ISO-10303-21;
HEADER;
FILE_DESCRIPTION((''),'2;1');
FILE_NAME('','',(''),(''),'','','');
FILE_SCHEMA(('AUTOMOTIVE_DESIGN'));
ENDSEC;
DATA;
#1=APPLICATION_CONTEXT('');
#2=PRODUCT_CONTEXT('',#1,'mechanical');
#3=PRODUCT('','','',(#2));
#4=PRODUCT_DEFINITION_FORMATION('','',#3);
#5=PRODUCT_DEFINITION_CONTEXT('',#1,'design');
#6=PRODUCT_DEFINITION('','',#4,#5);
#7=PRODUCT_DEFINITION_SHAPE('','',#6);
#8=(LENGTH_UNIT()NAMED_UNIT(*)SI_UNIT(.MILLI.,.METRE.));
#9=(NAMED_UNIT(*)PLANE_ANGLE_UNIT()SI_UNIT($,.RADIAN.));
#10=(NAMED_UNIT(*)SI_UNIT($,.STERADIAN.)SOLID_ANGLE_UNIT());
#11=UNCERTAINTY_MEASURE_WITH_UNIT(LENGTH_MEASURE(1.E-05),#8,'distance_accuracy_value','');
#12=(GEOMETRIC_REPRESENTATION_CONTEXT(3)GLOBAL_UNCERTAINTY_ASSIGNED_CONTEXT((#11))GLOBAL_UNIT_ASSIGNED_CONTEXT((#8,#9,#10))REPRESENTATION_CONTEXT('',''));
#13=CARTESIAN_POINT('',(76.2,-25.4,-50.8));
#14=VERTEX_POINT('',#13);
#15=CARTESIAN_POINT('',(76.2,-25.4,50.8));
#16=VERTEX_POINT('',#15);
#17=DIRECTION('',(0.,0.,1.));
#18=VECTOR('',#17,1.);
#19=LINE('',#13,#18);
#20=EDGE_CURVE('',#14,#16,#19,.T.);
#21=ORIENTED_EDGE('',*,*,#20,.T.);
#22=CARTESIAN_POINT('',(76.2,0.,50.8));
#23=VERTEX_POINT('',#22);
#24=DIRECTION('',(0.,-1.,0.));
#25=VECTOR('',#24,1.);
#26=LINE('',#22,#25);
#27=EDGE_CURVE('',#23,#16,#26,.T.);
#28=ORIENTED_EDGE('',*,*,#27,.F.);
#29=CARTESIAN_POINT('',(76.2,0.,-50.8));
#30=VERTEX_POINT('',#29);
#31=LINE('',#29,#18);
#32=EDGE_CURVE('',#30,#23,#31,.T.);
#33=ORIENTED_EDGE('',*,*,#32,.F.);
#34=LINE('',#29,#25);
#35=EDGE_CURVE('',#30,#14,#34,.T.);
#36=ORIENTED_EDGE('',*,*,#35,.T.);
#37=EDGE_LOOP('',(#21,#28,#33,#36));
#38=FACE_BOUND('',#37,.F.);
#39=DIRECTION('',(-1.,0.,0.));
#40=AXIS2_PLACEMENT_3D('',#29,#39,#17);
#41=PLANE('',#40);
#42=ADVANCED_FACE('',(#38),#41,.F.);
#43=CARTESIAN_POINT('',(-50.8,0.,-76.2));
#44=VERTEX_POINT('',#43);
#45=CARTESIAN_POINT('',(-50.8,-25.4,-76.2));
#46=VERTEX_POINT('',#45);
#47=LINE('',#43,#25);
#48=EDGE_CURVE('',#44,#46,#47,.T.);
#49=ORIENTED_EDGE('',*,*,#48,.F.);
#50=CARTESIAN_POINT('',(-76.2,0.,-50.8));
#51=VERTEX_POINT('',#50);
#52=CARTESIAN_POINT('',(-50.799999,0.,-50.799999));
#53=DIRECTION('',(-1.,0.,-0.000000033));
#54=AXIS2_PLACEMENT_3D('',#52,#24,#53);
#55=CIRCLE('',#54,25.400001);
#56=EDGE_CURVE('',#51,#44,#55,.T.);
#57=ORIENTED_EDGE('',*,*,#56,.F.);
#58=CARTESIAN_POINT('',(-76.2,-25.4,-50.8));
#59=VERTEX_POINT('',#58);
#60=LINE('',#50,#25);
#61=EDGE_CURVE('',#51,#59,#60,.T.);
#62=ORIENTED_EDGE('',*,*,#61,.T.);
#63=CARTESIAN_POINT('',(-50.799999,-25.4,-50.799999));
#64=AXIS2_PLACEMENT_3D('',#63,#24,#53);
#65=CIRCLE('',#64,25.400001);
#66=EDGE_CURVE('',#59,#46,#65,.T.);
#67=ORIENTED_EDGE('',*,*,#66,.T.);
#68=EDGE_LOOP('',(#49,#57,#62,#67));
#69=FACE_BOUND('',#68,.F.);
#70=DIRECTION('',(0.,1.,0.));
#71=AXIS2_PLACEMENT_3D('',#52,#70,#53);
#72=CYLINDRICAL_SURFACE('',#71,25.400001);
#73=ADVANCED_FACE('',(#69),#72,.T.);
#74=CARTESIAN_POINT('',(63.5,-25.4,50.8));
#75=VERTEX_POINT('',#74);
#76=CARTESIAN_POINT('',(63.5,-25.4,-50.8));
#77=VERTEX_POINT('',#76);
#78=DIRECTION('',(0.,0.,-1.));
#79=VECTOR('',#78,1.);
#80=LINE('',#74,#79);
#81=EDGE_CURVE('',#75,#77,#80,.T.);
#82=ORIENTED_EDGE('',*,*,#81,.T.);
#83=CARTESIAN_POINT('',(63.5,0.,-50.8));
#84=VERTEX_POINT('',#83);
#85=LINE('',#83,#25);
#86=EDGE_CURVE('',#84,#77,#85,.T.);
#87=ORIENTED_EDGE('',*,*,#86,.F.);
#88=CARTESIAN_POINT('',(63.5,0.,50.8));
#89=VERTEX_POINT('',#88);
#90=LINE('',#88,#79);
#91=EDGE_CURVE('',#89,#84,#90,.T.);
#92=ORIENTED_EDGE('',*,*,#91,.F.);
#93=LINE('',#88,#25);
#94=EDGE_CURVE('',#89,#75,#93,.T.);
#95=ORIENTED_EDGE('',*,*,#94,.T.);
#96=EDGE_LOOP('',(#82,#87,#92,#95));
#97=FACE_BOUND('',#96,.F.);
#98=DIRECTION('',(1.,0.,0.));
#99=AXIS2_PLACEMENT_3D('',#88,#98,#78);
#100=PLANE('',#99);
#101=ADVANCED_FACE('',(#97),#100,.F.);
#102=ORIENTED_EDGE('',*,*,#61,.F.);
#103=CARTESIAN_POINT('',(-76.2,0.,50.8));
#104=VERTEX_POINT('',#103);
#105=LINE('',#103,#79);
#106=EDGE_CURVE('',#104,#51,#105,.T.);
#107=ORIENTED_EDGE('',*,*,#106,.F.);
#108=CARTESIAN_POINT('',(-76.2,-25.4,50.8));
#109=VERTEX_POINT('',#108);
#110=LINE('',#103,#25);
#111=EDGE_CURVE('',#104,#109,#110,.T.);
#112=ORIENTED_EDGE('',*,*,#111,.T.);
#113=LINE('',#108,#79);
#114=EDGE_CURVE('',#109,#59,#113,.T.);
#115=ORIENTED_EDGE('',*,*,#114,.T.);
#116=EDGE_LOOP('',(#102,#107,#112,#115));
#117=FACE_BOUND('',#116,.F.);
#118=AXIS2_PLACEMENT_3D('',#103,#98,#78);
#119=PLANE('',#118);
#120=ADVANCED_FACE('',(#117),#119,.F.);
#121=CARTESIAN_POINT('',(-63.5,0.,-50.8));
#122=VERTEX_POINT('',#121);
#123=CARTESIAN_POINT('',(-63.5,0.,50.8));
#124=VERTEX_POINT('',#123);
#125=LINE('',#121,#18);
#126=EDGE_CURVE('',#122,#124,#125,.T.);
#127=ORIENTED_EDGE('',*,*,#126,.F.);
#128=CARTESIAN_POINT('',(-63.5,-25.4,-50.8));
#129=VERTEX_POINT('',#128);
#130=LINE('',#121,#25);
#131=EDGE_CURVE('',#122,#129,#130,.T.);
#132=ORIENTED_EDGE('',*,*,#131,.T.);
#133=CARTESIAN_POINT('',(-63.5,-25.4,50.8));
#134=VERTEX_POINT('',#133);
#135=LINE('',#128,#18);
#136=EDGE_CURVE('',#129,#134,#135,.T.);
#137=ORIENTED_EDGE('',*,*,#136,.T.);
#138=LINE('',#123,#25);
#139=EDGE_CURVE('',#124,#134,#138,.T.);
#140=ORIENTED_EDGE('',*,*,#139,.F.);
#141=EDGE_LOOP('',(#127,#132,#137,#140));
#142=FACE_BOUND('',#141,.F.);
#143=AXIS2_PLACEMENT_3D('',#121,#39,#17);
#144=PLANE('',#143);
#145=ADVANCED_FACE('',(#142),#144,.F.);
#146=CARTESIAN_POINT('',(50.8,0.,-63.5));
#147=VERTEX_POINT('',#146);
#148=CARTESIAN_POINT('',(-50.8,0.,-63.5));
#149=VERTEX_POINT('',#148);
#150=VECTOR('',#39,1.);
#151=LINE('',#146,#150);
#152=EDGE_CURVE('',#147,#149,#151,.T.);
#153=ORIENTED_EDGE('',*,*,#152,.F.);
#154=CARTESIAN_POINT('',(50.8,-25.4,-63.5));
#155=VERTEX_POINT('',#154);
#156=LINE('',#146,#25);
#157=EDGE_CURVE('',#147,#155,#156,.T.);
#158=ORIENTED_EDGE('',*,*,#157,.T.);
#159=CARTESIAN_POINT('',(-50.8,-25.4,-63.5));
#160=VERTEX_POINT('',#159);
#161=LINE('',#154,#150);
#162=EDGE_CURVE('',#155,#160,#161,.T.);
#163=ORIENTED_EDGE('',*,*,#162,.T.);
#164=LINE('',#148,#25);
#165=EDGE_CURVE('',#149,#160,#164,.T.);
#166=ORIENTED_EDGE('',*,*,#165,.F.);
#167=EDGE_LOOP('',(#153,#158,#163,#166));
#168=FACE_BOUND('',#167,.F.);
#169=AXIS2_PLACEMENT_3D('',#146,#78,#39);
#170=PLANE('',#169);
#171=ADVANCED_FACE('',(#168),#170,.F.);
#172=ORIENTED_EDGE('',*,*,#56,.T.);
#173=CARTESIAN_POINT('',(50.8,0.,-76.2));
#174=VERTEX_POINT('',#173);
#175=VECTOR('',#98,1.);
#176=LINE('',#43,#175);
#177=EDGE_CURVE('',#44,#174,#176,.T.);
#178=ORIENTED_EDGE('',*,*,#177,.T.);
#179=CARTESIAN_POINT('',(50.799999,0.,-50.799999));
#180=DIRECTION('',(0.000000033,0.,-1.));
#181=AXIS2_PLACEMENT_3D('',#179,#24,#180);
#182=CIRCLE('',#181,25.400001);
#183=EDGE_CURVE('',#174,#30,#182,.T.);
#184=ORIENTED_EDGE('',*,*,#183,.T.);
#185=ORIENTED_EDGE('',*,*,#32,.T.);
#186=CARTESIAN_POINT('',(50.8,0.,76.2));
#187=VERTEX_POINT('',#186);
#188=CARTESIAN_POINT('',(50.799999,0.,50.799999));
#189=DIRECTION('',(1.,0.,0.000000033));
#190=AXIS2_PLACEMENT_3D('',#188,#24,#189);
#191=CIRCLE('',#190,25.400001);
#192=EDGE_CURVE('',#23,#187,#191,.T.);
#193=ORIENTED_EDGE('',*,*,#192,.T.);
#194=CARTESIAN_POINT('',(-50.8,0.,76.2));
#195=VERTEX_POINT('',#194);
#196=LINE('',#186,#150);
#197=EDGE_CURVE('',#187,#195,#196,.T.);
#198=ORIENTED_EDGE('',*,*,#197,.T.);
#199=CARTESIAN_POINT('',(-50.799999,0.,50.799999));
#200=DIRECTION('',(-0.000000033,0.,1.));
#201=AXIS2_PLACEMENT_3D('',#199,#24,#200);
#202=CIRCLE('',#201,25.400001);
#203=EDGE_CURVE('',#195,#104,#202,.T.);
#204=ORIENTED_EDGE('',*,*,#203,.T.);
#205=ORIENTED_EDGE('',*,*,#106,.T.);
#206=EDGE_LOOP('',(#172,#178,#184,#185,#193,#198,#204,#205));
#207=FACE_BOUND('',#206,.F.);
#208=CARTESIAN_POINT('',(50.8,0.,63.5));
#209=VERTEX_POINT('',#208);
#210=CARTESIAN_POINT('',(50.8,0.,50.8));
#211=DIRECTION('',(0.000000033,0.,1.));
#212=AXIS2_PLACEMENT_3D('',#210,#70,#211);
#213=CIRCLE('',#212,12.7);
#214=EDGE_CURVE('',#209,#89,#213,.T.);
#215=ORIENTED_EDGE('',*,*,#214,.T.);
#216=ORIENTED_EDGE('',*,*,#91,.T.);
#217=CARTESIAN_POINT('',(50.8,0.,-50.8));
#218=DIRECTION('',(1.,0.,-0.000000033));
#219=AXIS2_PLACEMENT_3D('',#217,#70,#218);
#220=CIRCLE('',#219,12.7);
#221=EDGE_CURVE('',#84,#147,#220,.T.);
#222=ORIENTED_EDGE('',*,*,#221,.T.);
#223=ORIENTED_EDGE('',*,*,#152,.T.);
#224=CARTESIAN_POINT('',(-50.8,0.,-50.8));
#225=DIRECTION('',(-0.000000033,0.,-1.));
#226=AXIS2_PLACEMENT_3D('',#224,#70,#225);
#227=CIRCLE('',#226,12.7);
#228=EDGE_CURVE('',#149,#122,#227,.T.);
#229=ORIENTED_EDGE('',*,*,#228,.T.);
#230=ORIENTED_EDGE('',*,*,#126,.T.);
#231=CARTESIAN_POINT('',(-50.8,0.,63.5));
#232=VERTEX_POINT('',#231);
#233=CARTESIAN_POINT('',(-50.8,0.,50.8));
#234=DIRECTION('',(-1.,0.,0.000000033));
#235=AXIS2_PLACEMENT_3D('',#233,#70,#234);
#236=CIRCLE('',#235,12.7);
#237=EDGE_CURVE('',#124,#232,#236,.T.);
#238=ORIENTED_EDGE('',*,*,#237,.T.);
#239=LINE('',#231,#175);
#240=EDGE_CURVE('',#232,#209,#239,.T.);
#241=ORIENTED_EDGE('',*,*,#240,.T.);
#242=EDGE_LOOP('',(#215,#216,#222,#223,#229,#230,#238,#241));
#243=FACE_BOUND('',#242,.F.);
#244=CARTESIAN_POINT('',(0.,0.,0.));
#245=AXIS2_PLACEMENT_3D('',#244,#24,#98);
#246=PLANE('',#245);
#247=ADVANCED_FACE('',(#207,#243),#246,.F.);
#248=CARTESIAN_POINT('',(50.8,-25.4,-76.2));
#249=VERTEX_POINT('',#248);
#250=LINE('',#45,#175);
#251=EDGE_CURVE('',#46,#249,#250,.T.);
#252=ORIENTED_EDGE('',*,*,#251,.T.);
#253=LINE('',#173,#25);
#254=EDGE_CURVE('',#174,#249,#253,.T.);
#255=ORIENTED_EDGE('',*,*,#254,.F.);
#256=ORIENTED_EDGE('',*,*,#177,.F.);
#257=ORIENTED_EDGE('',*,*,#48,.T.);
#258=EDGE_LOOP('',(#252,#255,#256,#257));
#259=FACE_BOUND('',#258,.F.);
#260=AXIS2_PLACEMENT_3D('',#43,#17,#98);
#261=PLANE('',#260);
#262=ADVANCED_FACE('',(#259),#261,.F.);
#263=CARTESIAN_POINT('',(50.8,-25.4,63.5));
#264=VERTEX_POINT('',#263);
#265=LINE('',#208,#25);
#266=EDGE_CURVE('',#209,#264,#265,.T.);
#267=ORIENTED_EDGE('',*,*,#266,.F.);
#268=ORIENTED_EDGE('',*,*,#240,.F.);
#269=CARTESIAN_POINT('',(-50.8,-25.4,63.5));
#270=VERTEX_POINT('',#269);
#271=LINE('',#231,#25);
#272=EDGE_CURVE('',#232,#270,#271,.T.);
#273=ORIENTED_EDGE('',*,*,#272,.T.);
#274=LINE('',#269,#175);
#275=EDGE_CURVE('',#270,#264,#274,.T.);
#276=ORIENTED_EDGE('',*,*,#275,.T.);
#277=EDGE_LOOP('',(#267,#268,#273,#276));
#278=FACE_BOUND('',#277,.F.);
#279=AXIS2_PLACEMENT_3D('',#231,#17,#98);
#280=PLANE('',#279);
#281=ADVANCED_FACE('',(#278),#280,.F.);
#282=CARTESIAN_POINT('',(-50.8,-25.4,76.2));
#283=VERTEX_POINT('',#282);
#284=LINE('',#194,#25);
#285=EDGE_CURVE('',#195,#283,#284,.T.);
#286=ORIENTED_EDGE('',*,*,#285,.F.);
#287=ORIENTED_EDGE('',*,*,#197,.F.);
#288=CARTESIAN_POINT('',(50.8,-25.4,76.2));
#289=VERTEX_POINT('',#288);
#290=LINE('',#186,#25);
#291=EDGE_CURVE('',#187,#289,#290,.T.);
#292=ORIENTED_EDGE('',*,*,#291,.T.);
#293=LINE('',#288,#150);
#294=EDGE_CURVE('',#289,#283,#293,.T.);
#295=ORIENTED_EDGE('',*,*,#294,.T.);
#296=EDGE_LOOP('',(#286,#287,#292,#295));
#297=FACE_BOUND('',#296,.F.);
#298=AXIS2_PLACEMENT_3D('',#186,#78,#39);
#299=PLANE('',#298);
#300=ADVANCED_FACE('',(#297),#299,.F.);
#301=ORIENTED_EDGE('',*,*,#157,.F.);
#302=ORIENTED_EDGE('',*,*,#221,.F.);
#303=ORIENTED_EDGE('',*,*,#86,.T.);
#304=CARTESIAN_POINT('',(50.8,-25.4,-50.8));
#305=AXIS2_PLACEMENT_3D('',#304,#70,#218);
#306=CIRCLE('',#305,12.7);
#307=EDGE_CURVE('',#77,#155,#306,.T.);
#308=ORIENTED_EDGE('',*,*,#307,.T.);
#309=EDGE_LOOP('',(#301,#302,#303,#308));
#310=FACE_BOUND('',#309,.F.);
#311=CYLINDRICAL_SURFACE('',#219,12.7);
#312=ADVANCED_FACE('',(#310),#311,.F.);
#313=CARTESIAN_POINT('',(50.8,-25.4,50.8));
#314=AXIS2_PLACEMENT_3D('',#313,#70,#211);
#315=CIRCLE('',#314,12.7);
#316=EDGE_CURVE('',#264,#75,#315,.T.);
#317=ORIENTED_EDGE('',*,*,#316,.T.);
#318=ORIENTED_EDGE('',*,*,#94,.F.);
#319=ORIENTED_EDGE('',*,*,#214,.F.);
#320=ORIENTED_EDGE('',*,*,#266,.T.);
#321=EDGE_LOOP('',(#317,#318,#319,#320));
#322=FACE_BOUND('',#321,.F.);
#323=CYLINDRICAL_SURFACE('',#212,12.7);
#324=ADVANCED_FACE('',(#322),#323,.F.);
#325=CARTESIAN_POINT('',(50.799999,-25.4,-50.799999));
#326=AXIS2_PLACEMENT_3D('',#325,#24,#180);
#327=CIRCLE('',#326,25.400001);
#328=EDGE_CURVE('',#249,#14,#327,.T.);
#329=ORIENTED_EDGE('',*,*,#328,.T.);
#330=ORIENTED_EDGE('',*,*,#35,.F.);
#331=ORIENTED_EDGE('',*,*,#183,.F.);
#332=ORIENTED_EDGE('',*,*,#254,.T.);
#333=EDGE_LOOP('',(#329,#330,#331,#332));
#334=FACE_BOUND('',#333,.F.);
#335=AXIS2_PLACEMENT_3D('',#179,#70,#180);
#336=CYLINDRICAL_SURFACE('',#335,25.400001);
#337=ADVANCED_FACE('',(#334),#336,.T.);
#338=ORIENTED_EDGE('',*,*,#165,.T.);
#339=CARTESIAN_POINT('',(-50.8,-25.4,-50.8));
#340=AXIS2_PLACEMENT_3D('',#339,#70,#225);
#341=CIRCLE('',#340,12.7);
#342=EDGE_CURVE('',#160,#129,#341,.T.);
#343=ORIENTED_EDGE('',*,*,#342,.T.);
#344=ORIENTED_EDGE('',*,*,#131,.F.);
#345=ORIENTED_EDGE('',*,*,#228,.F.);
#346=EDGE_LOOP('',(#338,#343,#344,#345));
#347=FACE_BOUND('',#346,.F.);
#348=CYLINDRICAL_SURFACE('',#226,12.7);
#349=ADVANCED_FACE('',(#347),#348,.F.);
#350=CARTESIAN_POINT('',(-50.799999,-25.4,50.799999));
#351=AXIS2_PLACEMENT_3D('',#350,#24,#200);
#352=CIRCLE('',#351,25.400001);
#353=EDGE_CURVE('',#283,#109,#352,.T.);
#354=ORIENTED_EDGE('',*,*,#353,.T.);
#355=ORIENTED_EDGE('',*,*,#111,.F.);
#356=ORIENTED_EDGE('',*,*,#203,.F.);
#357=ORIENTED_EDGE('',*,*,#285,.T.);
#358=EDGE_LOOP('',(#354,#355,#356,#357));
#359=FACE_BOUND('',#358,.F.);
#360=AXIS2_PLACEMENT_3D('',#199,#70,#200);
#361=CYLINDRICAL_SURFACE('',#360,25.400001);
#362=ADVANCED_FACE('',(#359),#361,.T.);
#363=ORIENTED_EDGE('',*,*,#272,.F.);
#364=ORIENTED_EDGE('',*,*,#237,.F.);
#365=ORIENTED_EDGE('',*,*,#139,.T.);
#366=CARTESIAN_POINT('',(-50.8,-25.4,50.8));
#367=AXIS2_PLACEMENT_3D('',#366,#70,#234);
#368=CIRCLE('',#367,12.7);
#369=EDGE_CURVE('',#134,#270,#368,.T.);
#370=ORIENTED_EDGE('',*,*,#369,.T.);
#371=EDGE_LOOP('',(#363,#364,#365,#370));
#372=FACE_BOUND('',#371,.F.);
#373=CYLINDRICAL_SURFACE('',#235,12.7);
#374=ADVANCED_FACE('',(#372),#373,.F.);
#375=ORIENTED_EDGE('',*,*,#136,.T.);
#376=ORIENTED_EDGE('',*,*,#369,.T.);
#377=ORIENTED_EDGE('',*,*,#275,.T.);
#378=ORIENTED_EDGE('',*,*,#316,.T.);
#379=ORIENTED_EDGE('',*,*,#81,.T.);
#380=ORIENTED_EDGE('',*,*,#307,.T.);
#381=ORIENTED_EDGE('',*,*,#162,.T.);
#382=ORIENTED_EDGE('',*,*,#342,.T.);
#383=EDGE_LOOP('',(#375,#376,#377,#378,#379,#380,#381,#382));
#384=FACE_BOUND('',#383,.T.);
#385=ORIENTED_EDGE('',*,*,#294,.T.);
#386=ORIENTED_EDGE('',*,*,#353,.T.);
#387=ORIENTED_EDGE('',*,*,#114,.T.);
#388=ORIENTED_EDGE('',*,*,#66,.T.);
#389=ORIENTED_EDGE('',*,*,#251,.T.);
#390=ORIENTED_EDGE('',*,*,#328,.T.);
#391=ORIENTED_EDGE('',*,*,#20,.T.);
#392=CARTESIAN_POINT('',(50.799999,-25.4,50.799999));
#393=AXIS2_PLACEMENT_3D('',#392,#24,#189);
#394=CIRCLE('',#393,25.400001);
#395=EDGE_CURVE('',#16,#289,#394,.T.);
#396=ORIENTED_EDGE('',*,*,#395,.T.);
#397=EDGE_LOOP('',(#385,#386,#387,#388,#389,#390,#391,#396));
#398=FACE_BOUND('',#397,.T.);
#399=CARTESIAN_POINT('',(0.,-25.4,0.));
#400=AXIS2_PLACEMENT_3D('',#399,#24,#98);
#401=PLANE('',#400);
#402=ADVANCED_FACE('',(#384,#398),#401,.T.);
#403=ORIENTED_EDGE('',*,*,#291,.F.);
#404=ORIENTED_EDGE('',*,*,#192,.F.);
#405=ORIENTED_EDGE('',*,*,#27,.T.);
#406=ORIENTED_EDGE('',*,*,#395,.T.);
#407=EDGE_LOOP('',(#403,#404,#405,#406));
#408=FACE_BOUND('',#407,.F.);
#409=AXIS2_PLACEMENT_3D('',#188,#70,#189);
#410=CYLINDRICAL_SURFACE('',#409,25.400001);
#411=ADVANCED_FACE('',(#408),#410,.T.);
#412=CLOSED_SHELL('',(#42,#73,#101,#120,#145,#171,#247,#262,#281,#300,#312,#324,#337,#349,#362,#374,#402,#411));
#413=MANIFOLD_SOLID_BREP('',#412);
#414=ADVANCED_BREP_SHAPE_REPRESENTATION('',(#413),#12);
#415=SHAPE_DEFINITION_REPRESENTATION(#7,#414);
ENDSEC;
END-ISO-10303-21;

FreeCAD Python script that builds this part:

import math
import FreeCAD as App
import Part
import Sketcher
Q = App.Units.Quantity

doc = App.newDocument("Part")
params = doc.addObject("Spreadsheet::Sheet", "Params")
for row, (alias, value) in enumerate([
    ("sketch1_radius", "1 in"),
    ("sketch1_radius2", "0.5 in"),
    ("sketch1_width", "4 in"),
    ("pad1_length", "1 in"),
], start=1):
    params.set(f"A{row}", alias)
    params.set(f"B{row}", "=" + value)
    params.setAlias(f"B{row}", alias)

body = doc.addObject("PartDesign::Body", "Body")

# Sketch on XZ plane
sketch1 = doc.addObject("Sketcher::SketchObject", "Sketch")
body.addObject(sketch1)
sketch1.AttachmentSupport = (doc.XZ_Plane, [""])
sketch1.MapMode = "FlatFace"
sketch1.addGeometry(Part.ArcOfCircle(Part.Circle(App.Vector(51, 51, 0), App.Vector(0, 0, 1), 25), math.radians(0), math.radians(90)), False)
sketch1.addGeometry(Part.LineSegment(App.Vector(51, 76, 0), App.Vector(-51, 76, 0)), False)
sketch1.addGeometry(Part.ArcOfCircle(Part.Circle(App.Vector(-51, 51, 0), App.Vector(0, 0, 1), 25), math.radians(90), math.radians(180)), False)
sketch1.addGeometry(Part.LineSegment(App.Vector(-76, 51, 0), App.Vector(-76, -51, 0)), False)
sketch1.addGeometry(Part.ArcOfCircle(Part.Circle(App.Vector(-51, -51, 0), App.Vector(0, 0, 1), 25), math.radians(-180), math.radians(-90)), False)
sketch1.addGeometry(Part.LineSegment(App.Vector(-51, -76, 0), App.Vector(51, -76, 0)), False)
sketch1.addGeometry(Part.ArcOfCircle(Part.Circle(App.Vector(51, -51, 0), App.Vector(0, 0, 1), 25), math.radians(-90), math.radians(0)), False)
sketch1.addGeometry(Part.LineSegment(App.Vector(76, -51, 0), App.Vector(76, 51, 0)), False)
sketch1.addGeometry(Part.ArcOfCircle(Part.Circle(App.Vector(-51, 51, 0), App.Vector(0, 0, 1), 13), math.radians(90), math.radians(180)), False)
sketch1.addGeometry(Part.LineSegment(App.Vector(-51, 64, 0), App.Vector(51, 64, 0)), False)
sketch1.addGeometry(Part.ArcOfCircle(Part.Circle(App.Vector(51, 51, 0), App.Vector(0, 0, 1), 13), math.radians(0), math.radians(90)), False)
sketch1.addGeometry(Part.LineSegment(App.Vector(64, 51, 0), App.Vector(64, -51, 0)), False)
sketch1.addGeometry(Part.ArcOfCircle(Part.Circle(App.Vector(51, -51, 0), App.Vector(0, 0, 1), 13), math.radians(-90), math.radians(0)), False)
sketch1.addGeometry(Part.LineSegment(App.Vector(51, -64, 0), App.Vector(-51, -64, 0)), False)
sketch1.addGeometry(Part.ArcOfCircle(Part.Circle(App.Vector(-51, -51, 0), App.Vector(0, 0, 1), 13), math.radians(-180), math.radians(-90)), False)
sketch1.addGeometry(Part.LineSegment(App.Vector(-64, -51, 0), App.Vector(-64, 51, 0)), False)
sketch1.addConstraint(Sketcher.Constraint("Tangent", 0, 2, 1, 1))
sketch1.addConstraint(Sketcher.Constraint("Tangent", 1, 2, 2, 1))
sketch1.addConstraint(Sketcher.Constraint("Tangent", 2, 2, 3, 1))
sketch1.addConstraint(Sketcher.Constraint("Tangent", 3, 2, 4, 1))
sketch1.addConstraint(Sketcher.Constraint("Tangent", 4, 2, 5, 1))
sketch1.addConstraint(Sketcher.Constraint("Tangent", 5, 2, 6, 1))
sketch1.addConstraint(Sketcher.Constraint("Tangent", 6, 2, 7, 1))
sketch1.addConstraint(Sketcher.Constraint("Tangent", 7, 2, 0, 1))
sketch1.addConstraint(Sketcher.Constraint("Tangent", 8, 1, 9, 1))
sketch1.addConstraint(Sketcher.Constraint("Tangent", 9, 2, 10, 2))
sketch1.addConstraint(Sketcher.Constraint("Tangent", 10, 1, 11, 1))
sketch1.addConstraint(Sketcher.Constraint("Tangent", 11, 2, 12, 2))
sketch1.addConstraint(Sketcher.Constraint("Tangent", 12, 1, 13, 1))
sketch1.addConstraint(Sketcher.Constraint("Tangent", 13, 2, 14, 2))
sketch1.addConstraint(Sketcher.Constraint("Tangent", 14, 1, 15, 1))
sketch1.addConstraint(Sketcher.Constraint("Tangent", 15, 2, 8, 2))
sketch1.addConstraint(Sketcher.Constraint("Horizontal", 1))
sketch1.addConstraint(Sketcher.Constraint("Vertical", 3))
sketch1.addConstraint(Sketcher.Constraint("Horizontal", 5))
sketch1.addConstraint(Sketcher.Constraint("Vertical", 7))
sketch1.addConstraint(Sketcher.Constraint("Horizontal", 9))
sketch1.addConstraint(Sketcher.Constraint("Vertical", 11))
sketch1.addConstraint(Sketcher.Constraint("Horizontal", 13))
sketch1.addConstraint(Sketcher.Constraint("Vertical", 15))
sketch1.addConstraint(Sketcher.Constraint("Coincident", 8, 3, 2, 3))
sketch1.addConstraint(Sketcher.Constraint("Coincident", 10, 3, 0, 3))
sketch1.addConstraint(Sketcher.Constraint("Coincident", 12, 3, 6, 3))
sketch1.addConstraint(Sketcher.Constraint("Equal", 0, 2))
sketch1.addConstraint(Sketcher.Constraint("Equal", 2, 4))
sketch1.addConstraint(Sketcher.Constraint("Equal", 4, 6))
sketch1.addConstraint(Sketcher.Constraint("Equal", 12, 14))
sketch1.addConstraint(Sketcher.Constraint("Symmetric", 0, 3, 4, 3, -1, 1))
sketch1.addConstraint(Sketcher.Constraint("Equal", 13, 3))
sketch1.addConstraint(Sketcher.Constraint("Radius", 0, Q("1 in")))
sketch1.addConstraint(Sketcher.Constraint("Radius", 8, Q("0.5 in")))
sketch1.addConstraint(Sketcher.Constraint("DistanceX", 1, 2, 1, 1, Q("4 in")))
sketch1.setExpression("Constraints[33]", "Params.sketch1_radius")
sketch1.setExpression("Constraints[34]", "Params.sketch1_radius2")
sketch1.setExpression("Constraints[35]", "Params.sketch1_width")
pad1 = doc.addObject("PartDesign::Pad", "Pad")
body.addObject(pad1)
pad1.Profile = sketch1
pad1.setExpression("Length", "Params.pad1_length")

doc.recompute()
